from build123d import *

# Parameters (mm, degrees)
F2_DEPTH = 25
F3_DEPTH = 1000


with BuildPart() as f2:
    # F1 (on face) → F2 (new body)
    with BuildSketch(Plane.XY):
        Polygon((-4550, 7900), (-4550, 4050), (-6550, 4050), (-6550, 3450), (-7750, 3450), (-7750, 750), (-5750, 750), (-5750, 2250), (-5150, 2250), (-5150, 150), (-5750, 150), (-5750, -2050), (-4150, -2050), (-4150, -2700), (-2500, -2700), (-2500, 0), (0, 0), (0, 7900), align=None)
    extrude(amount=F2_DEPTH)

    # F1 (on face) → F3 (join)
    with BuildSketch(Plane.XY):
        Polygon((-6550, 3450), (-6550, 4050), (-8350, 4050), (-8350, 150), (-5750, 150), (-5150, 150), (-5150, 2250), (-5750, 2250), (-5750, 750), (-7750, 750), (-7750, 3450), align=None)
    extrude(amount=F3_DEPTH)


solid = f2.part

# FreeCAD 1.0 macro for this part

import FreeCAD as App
import Part
import Sketcher
Q = App.Units.Quantity


def add_polygon(sketch, points):
    """Adds a closed chain of lines whose ends are joined by coincident constraints."""
    first, n = sketch.GeometryCount, len(points)
    for a, b in zip(points, points[1:] + points[:1]):
        sketch.addGeometry(Part.LineSegment(App.Vector(*a, 0), App.Vector(*b, 0)), False)
    for i in range(n):
        sketch.addConstraint(Sketcher.Constraint("Coincident", first + i, 2, first + (i + 1) % n, 1))

doc = App.newDocument("Part")
params = doc.addObject("Spreadsheet::Sheet", "Params")
for row, (alias, value) in enumerate([
    ("sketch1_width", "2000 mm"),
    ("sketch1_width2", "1200 mm"),
    ("sketch1_width3", "600 mm"),
    ("sketch1_width4", "1600 mm"),
    ("sketch1_width5", "1650 mm"),
    ("pad1_length", "25 mm"),
    ("sketch2_width", "1800 mm"),
    ("sketch2_width2", "3200 mm"),
    ("sketch2_width3", "600 mm"),
    ("sketch2_width4", "2000 mm"),
    ("sketch2_height", "3900 mm"),
    ("pad2_length", "1000 mm"),
], start=1):
    params.set(f"A{row}", alias)
    params.set(f"B{row}", "=" + value)
    params.setAlias(f"B{row}", alias)

body = doc.addObject("PartDesign::Body", "Body")

# Sketch on XY plane
sketch1 = body.newObject("Sketcher::SketchObject", "Sketch")
sketch1.AttachmentSupport = (doc.getObject("XY_Plane"), [""])
sketch1.MapMode = "FlatFace"
add_polygon(sketch1, [(-4550, 7900), (-4550, 4050), (-6550, 4050), (-6550, 3450), (-7750, 3450), (-7750, 750), (-5750, 750), (-5750, 2250), (-5150, 2250), (-5150, 150), (-5750, 150), (-5750, -2050), (-4150, -2050), (-4150, -2700), (-2500, -2700), (-2500, 0), (0, 0), (0, 7900)])  # lines 0-17
sketch1.addConstraint([
    Sketcher.Constraint("Vertical", 0),
    Sketcher.Constraint("Horizontal", 1),
    Sketcher.Constraint("Vertical", 2),
    Sketcher.Constraint("Horizontal", 3),
    Sketcher.Constraint("Vertical", 4),
    Sketcher.Constraint("Horizontal", 5),
    Sketcher.Constraint("Vertical", 6),
    Sketcher.Constraint("Horizontal", 7),
    Sketcher.Constraint("Vertical", 8),
    Sketcher.Constraint("Horizontal", 9),
    Sketcher.Constraint("Vertical", 10),
    Sketcher.Constraint("Horizontal", 11),
    Sketcher.Constraint("Vertical", 12),
    Sketcher.Constraint("Horizontal", 13),
    Sketcher.Constraint("Vertical", 14),
    Sketcher.Constraint("Horizontal", 15),
    Sketcher.Constraint("Vertical", 16),
    Sketcher.Constraint("Horizontal", 17),
    Sketcher.Constraint("Coincident", 15, 2, -1, 1),
    Sketcher.Constraint("Vertical", 6, 2, 9, 2),
    Sketcher.Constraint("Equal", 1, 5),
    Sketcher.Constraint("Equal", 9, 2),
    Sketcher.Constraint("Equal", 4, 14),
    Sketcher.Constraint("DistanceX", 1, 2, 1, 1, Q("2000 mm")),
    Sketcher.Constraint("DistanceX", 3, 2, 3, 1, Q("1200 mm")),
    Sketcher.Constraint("DistanceX", 7, 1, 7, 2, Q("600 mm")),
    Sketcher.Constraint("DistanceX", 11, 1, 11, 2, Q("1600 mm")),
    Sketcher.Constraint("DistanceX", 13, 1, 13, 2, Q("1650 mm")),
    Sketcher.Constraint("DistanceX", 15, 1, 15, 2, Q("2500 mm")),
    Sketcher.Constraint("DistanceY", 0, 2, 0, 1, Q("3850 mm")),
    Sketcher.Constraint("DistanceY", 4, 2, 4, 1, Q("2700 mm")),
    Sketcher.Constraint("DistanceY", 6, 1, 6, 2, Q("1500 mm")),
    Sketcher.Constraint("DistanceY", 8, 2, 8, 1, Q("2100 mm")),
    Sketcher.Constraint("DistanceY", 10, 2, 10, 1, Q("2200 mm")),
    Sketcher.Constraint("DistanceY", 12, 2, 12, 1, Q("650 mm")),
])
sketch1.setExpression("Constraints[41]", "Params.sketch1_width")
sketch1.setExpression("Constraints[42]", "Params.sketch1_width2")
sketch1.setExpression("Constraints[43]", "Params.sketch1_width3")
sketch1.setExpression("Constraints[44]", "Params.sketch1_width4")
sketch1.setExpression("Constraints[45]", "Params.sketch1_width5")
pad1 = body.newObject("PartDesign::Pad", "Pad")
pad1.Profile = sketch1
pad1.setExpression("Length", "Params.pad1_length")

# Sketch on XY plane
sketch2 = body.newObject("Sketcher::SketchObject", "Sketch001")
sketch2.AttachmentSupport = (doc.getObject("XY_Plane"), [""])
sketch2.MapMode = "FlatFace"
add_polygon(sketch2, [(-6550, 3450), (-6550, 4050), (-8350, 4050), (-8350, 150), (-5150, 150), (-5150, 2250), (-5750, 2250), (-5750, 750), (-7750, 750), (-7750, 3450)])  # lines 0-9
sketch2.addConstraint([
    Sketcher.Constraint("Vertical", 0),
    Sketcher.Constraint("Horizontal", 1),
    Sketcher.Constraint("Vertical", 2),
    Sketcher.Constraint("Horizontal", 3),
    Sketcher.Constraint("Vertical", 4),
    Sketcher.Constraint("Horizontal", 5),
    Sketcher.Constraint("Vertical", 6),
    Sketcher.Constraint("Horizontal", 7),
    Sketcher.Constraint("Vertical", 8),
    Sketcher.Constraint("Horizontal", 9),
    Sketcher.Constraint("Equal", 5, 0),
    Sketcher.Constraint("DistanceX", 1, 2, 1, 1, Q("1800 mm")),
    Sketcher.Constraint("DistanceX", 3, 1, 3, 2, Q("3200 mm")),
    Sketcher.Constraint("DistanceX", 5, 2, 5, 1, Q("600 mm")),
    Sketcher.Constraint("DistanceX", 7, 2, 7, 1, Q("2000 mm")),
    Sketcher.Constraint("DistanceY", 2, 2, 2, 1, Q("3900 mm")),
    Sketcher.Constraint("DistanceY", 4, 1, 4, 2, Q("2100 mm")),
    Sketcher.Constraint("DistanceY", 6, 2, 6, 1, Q("1500 mm")),
    Sketcher.Constraint("DistanceX", 0, 2, -1, 1, Q("6550 mm")),
    Sketcher.Constraint("DistanceY", -1, 1, 0, 2, Q("4050 mm")),
])
sketch2.setExpression("Constraints[21]", "Params.sketch2_width")
sketch2.setExpression("Constraints[22]", "Params.sketch2_width2")
sketch2.setExpression("Constraints[23]", "Params.sketch2_width3")
sketch2.setExpression("Constraints[24]", "Params.sketch2_width4")
sketch2.setExpression("Constraints[25]", "Params.sketch2_height")
pad2 = body.newObject("PartDesign::Pad", "Pad001")
pad2.Profile = sketch2
pad2.setExpression("Length", "Params.pad2_length")

doc.recompute()
